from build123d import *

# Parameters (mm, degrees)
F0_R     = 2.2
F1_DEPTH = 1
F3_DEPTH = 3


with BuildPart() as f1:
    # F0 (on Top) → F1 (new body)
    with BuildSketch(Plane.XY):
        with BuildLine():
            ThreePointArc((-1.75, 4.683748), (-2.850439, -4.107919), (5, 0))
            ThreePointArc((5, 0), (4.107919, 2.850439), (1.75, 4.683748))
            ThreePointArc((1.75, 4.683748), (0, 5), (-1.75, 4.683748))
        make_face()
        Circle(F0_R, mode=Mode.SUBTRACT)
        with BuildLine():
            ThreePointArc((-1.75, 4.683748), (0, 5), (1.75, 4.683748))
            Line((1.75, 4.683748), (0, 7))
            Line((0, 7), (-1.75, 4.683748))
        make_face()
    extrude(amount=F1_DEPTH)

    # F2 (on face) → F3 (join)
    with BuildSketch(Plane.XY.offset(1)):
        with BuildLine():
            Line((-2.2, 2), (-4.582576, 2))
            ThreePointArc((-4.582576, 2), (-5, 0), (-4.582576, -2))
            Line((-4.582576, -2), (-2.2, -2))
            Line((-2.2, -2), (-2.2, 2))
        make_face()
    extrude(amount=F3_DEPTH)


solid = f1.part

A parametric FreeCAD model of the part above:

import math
import FreeCAD as App
import Part
import Sketcher

doc = App.newDocument("Part")
body = doc.addObject("PartDesign::Body", "Body")

# Sketch on XY plane
sketch1 = body.newObject("Sketcher::SketchObject", "Sketch")
sketch1.AttachmentSupport = (doc.getObject("XY_Plane"), [""])
sketch1.MapMode = "FlatFace"
sketch1.addGeometry([
    Part.ArcOfCircle(Part.Circle(App.Vector(0, 0, 0), App.Vector(0, 0, 1), 5), math.radians(110), math.radians(360)),  # 0
    Part.ArcOfCircle(Part.Circle(App.Vector(0, 0, 0), App.Vector(0, 0, 1), 5), math.radians(0), math.radians(70)),  # 1
    Part.LineSegment(App.Vector(1.8, 4.7, 0), App.Vector(0, 7, 0)),  # 2
    Part.LineSegment(App.Vector(0, 7, 0), App.Vector(-1.8, 4.7, 0)),  # 3
    Part.Circle(App.Vector(0, 0, 0), App.Vector(0, 0, 1), 2.2),  # 4
], False)
sketch1.addConstraint([
    Sketcher.Constraint("Tangent", 0, 2, 1, 1),
    Sketcher.Constraint("Coincident", 1, 2, 2, 1),
    Sketcher.Constraint("Coincident", 2, 2, 3, 1),
    Sketcher.Constraint("Coincident", 3, 2, 0, 1),
    Sketcher.Constraint("Coincident", 0, 3, -1, 1),
    Sketcher.Constraint("Coincident", 4, 3, -1, 1),
    Sketcher.Constraint("Equal", 0, 1),
    Sketcher.Constraint("PointOnObject", 0, 2, -1),
    Sketcher.Constraint("PointOnObject", 2, 2, -2),
    Sketcher.Constraint("Horizontal", 1, 2, 3, 2),
    Sketcher.Constraint("Radius", 0, 5.0),
    Sketcher.Constraint("Diameter", 4, 4.4),
    Sketcher.Constraint("DistanceY", -1, 1, 2, 2, 7.0),
    Sketcher.Constraint("DistanceX", 3, 2, 1, 2, 3.5),
])
pad1 = body.newObject("PartDesign::Pad", "Pad")
pad1.Profile = sketch1
pad1.Length = 1

# Sketch on XY plane
sketch2 = body.newObject("Sketcher::SketchObject", "Sketch001")
sketch2.AttachmentSupport = (doc.getObject("XY_Plane"), [""])
sketch2.MapMode = "FlatFace"
sketch2.AttachmentOffset = App.Placement(App.Vector(0, 0, 1), App.Rotation())
sketch2.addGeometry([
    Part.LineSegment(App.Vector(-2.2, 2, 0), App.Vector(-4.6, 2, 0)),
    Part.ArcOfCircle(Part.Circle(App.Vector(0, 0, 0), App.Vector(0, 0, 1), 5), math.radians(156), math.radians(204)),
    Part.LineSegment(App.Vector(-4.6, -2, 0), App.Vector(-2.2, -2, 0)),
    Part.LineSegment(App.Vector(-2.2, -2, 0), App.Vector(-2.2, 2, 0)),
], False)
sketch2.addConstraint([
    Sketcher.Constraint("Coincident", 0, 2, 1, 1),
    Sketcher.Constraint("Coincident", 1, 2, 2, 1),
    Sketcher.Constraint("Coincident", 2, 2, 3, 1),
    Sketcher.Constraint("Coincident", 3, 2, 0, 1),
    Sketcher.Constraint("Horizontal", 0),
    Sketcher.Constraint("Horizontal", 2),
    Sketcher.Constraint("Vertical", 3),
    Sketcher.Constraint("Coincident", 1, 3, -1, 1),
    Sketcher.Constraint("Vertical", 0, 2, 1, 2),
    Sketcher.Constraint("DistanceY", 3, 1, 3, 2, 4.0),
    Sketcher.Constraint("DistanceX", 2, 2, -1, 1, 2.2),
    Sketcher.Constraint("Radius", 1, 5.000003),
])
pad2 = body.newObject("PartDesign::Pad", "Pad001")
pad2.Profile = sketch2
pad2.Length = 3

doc.recompute()
